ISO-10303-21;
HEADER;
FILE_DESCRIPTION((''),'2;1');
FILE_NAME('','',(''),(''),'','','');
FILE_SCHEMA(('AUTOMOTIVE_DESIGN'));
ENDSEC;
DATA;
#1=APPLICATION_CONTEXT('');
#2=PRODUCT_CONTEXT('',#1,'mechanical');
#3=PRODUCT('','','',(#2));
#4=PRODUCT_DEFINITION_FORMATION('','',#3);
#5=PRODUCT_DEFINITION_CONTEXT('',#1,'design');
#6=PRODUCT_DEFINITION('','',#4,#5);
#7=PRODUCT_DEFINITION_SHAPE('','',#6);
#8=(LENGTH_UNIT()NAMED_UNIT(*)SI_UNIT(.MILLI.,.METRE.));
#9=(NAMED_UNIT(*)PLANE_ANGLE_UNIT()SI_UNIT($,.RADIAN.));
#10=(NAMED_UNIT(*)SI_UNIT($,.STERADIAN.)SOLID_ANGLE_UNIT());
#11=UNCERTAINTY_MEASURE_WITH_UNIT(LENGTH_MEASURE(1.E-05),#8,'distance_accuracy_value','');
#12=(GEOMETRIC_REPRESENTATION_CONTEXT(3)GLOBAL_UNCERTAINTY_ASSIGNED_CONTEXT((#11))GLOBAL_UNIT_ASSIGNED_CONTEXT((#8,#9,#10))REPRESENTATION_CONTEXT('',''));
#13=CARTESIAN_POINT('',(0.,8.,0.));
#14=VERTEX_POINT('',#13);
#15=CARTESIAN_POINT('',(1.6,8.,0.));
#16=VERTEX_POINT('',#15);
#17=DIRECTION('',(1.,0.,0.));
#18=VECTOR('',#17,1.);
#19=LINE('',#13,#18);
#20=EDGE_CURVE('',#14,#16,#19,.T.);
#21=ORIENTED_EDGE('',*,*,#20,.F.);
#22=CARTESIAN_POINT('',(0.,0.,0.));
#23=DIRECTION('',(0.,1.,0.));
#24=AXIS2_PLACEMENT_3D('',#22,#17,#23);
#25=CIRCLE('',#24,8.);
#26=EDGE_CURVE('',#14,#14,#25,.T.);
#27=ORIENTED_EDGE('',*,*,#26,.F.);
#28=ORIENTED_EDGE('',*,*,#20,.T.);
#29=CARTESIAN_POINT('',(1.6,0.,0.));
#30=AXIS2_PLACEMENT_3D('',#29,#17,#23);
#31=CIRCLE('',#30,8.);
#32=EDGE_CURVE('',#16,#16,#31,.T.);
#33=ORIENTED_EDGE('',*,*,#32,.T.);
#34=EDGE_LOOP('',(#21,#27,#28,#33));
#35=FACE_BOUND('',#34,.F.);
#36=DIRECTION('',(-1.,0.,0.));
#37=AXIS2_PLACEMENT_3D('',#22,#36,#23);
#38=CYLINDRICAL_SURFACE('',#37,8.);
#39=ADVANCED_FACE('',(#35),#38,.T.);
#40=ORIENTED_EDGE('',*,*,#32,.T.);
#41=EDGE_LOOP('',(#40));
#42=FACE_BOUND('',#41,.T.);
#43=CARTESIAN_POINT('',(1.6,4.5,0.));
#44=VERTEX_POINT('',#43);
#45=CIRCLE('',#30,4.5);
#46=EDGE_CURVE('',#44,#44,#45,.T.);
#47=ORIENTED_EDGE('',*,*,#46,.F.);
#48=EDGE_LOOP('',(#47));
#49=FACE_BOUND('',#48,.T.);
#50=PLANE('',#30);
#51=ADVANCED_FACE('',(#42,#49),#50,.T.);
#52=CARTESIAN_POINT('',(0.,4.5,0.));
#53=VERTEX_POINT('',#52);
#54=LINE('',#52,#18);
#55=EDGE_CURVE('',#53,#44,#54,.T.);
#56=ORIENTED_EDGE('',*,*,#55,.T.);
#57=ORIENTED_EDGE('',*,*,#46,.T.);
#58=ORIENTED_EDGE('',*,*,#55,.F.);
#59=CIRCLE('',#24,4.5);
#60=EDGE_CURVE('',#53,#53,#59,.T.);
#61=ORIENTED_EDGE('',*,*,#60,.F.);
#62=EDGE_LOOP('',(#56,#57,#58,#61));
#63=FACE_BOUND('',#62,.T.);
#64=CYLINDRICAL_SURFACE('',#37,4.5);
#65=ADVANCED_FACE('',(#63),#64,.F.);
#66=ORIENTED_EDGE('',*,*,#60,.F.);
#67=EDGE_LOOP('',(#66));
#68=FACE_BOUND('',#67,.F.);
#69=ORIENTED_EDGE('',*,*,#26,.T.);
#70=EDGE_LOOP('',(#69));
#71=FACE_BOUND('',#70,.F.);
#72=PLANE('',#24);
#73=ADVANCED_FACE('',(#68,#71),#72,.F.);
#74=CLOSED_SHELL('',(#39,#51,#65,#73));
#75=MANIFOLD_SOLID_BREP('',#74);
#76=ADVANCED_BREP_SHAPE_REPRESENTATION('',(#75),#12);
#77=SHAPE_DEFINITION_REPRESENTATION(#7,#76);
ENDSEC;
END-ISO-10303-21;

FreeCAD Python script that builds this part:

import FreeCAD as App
import Part
import Sketcher

doc = App.newDocument("Part")
body = doc.addObject("PartDesign::Body", "Body")

sketch1 = doc.addObject("Sketcher::SketchObject", "Sketch")
body.addObject(sketch1)
sketch1.AttachmentSupport = (doc.YZ_Plane, [""])
sketch1.MapMode = "FlatFace"
sketch1.addGeometry(Part.Circle(App.Vector(0, 0, 0), App.Vector(0, 0, 1), 8), False)
sketch1.addGeometry(Part.Circle(App.Vector(0, 0, 0), App.Vector(0, 0, 1), 4.5), False)
sketch1.addConstraint(Sketcher.Constraint("Coincident", 0, 3, -1, 1))
sketch1.addConstraint(Sketcher.Constraint("Coincident", 1, 3, -1, 1))
sketch1.addConstraint(Sketcher.Constraint("Diameter", 0, 16.0))
sketch1.addConstraint(Sketcher.Constraint("Diameter", 1, 9.0))
pad1 = doc.addObject("PartDesign::Pad", "Pad")
body.addObject(pad1)
pad1.Profile = sketch1
pad1.Length = 1.6

doc.recompute()
